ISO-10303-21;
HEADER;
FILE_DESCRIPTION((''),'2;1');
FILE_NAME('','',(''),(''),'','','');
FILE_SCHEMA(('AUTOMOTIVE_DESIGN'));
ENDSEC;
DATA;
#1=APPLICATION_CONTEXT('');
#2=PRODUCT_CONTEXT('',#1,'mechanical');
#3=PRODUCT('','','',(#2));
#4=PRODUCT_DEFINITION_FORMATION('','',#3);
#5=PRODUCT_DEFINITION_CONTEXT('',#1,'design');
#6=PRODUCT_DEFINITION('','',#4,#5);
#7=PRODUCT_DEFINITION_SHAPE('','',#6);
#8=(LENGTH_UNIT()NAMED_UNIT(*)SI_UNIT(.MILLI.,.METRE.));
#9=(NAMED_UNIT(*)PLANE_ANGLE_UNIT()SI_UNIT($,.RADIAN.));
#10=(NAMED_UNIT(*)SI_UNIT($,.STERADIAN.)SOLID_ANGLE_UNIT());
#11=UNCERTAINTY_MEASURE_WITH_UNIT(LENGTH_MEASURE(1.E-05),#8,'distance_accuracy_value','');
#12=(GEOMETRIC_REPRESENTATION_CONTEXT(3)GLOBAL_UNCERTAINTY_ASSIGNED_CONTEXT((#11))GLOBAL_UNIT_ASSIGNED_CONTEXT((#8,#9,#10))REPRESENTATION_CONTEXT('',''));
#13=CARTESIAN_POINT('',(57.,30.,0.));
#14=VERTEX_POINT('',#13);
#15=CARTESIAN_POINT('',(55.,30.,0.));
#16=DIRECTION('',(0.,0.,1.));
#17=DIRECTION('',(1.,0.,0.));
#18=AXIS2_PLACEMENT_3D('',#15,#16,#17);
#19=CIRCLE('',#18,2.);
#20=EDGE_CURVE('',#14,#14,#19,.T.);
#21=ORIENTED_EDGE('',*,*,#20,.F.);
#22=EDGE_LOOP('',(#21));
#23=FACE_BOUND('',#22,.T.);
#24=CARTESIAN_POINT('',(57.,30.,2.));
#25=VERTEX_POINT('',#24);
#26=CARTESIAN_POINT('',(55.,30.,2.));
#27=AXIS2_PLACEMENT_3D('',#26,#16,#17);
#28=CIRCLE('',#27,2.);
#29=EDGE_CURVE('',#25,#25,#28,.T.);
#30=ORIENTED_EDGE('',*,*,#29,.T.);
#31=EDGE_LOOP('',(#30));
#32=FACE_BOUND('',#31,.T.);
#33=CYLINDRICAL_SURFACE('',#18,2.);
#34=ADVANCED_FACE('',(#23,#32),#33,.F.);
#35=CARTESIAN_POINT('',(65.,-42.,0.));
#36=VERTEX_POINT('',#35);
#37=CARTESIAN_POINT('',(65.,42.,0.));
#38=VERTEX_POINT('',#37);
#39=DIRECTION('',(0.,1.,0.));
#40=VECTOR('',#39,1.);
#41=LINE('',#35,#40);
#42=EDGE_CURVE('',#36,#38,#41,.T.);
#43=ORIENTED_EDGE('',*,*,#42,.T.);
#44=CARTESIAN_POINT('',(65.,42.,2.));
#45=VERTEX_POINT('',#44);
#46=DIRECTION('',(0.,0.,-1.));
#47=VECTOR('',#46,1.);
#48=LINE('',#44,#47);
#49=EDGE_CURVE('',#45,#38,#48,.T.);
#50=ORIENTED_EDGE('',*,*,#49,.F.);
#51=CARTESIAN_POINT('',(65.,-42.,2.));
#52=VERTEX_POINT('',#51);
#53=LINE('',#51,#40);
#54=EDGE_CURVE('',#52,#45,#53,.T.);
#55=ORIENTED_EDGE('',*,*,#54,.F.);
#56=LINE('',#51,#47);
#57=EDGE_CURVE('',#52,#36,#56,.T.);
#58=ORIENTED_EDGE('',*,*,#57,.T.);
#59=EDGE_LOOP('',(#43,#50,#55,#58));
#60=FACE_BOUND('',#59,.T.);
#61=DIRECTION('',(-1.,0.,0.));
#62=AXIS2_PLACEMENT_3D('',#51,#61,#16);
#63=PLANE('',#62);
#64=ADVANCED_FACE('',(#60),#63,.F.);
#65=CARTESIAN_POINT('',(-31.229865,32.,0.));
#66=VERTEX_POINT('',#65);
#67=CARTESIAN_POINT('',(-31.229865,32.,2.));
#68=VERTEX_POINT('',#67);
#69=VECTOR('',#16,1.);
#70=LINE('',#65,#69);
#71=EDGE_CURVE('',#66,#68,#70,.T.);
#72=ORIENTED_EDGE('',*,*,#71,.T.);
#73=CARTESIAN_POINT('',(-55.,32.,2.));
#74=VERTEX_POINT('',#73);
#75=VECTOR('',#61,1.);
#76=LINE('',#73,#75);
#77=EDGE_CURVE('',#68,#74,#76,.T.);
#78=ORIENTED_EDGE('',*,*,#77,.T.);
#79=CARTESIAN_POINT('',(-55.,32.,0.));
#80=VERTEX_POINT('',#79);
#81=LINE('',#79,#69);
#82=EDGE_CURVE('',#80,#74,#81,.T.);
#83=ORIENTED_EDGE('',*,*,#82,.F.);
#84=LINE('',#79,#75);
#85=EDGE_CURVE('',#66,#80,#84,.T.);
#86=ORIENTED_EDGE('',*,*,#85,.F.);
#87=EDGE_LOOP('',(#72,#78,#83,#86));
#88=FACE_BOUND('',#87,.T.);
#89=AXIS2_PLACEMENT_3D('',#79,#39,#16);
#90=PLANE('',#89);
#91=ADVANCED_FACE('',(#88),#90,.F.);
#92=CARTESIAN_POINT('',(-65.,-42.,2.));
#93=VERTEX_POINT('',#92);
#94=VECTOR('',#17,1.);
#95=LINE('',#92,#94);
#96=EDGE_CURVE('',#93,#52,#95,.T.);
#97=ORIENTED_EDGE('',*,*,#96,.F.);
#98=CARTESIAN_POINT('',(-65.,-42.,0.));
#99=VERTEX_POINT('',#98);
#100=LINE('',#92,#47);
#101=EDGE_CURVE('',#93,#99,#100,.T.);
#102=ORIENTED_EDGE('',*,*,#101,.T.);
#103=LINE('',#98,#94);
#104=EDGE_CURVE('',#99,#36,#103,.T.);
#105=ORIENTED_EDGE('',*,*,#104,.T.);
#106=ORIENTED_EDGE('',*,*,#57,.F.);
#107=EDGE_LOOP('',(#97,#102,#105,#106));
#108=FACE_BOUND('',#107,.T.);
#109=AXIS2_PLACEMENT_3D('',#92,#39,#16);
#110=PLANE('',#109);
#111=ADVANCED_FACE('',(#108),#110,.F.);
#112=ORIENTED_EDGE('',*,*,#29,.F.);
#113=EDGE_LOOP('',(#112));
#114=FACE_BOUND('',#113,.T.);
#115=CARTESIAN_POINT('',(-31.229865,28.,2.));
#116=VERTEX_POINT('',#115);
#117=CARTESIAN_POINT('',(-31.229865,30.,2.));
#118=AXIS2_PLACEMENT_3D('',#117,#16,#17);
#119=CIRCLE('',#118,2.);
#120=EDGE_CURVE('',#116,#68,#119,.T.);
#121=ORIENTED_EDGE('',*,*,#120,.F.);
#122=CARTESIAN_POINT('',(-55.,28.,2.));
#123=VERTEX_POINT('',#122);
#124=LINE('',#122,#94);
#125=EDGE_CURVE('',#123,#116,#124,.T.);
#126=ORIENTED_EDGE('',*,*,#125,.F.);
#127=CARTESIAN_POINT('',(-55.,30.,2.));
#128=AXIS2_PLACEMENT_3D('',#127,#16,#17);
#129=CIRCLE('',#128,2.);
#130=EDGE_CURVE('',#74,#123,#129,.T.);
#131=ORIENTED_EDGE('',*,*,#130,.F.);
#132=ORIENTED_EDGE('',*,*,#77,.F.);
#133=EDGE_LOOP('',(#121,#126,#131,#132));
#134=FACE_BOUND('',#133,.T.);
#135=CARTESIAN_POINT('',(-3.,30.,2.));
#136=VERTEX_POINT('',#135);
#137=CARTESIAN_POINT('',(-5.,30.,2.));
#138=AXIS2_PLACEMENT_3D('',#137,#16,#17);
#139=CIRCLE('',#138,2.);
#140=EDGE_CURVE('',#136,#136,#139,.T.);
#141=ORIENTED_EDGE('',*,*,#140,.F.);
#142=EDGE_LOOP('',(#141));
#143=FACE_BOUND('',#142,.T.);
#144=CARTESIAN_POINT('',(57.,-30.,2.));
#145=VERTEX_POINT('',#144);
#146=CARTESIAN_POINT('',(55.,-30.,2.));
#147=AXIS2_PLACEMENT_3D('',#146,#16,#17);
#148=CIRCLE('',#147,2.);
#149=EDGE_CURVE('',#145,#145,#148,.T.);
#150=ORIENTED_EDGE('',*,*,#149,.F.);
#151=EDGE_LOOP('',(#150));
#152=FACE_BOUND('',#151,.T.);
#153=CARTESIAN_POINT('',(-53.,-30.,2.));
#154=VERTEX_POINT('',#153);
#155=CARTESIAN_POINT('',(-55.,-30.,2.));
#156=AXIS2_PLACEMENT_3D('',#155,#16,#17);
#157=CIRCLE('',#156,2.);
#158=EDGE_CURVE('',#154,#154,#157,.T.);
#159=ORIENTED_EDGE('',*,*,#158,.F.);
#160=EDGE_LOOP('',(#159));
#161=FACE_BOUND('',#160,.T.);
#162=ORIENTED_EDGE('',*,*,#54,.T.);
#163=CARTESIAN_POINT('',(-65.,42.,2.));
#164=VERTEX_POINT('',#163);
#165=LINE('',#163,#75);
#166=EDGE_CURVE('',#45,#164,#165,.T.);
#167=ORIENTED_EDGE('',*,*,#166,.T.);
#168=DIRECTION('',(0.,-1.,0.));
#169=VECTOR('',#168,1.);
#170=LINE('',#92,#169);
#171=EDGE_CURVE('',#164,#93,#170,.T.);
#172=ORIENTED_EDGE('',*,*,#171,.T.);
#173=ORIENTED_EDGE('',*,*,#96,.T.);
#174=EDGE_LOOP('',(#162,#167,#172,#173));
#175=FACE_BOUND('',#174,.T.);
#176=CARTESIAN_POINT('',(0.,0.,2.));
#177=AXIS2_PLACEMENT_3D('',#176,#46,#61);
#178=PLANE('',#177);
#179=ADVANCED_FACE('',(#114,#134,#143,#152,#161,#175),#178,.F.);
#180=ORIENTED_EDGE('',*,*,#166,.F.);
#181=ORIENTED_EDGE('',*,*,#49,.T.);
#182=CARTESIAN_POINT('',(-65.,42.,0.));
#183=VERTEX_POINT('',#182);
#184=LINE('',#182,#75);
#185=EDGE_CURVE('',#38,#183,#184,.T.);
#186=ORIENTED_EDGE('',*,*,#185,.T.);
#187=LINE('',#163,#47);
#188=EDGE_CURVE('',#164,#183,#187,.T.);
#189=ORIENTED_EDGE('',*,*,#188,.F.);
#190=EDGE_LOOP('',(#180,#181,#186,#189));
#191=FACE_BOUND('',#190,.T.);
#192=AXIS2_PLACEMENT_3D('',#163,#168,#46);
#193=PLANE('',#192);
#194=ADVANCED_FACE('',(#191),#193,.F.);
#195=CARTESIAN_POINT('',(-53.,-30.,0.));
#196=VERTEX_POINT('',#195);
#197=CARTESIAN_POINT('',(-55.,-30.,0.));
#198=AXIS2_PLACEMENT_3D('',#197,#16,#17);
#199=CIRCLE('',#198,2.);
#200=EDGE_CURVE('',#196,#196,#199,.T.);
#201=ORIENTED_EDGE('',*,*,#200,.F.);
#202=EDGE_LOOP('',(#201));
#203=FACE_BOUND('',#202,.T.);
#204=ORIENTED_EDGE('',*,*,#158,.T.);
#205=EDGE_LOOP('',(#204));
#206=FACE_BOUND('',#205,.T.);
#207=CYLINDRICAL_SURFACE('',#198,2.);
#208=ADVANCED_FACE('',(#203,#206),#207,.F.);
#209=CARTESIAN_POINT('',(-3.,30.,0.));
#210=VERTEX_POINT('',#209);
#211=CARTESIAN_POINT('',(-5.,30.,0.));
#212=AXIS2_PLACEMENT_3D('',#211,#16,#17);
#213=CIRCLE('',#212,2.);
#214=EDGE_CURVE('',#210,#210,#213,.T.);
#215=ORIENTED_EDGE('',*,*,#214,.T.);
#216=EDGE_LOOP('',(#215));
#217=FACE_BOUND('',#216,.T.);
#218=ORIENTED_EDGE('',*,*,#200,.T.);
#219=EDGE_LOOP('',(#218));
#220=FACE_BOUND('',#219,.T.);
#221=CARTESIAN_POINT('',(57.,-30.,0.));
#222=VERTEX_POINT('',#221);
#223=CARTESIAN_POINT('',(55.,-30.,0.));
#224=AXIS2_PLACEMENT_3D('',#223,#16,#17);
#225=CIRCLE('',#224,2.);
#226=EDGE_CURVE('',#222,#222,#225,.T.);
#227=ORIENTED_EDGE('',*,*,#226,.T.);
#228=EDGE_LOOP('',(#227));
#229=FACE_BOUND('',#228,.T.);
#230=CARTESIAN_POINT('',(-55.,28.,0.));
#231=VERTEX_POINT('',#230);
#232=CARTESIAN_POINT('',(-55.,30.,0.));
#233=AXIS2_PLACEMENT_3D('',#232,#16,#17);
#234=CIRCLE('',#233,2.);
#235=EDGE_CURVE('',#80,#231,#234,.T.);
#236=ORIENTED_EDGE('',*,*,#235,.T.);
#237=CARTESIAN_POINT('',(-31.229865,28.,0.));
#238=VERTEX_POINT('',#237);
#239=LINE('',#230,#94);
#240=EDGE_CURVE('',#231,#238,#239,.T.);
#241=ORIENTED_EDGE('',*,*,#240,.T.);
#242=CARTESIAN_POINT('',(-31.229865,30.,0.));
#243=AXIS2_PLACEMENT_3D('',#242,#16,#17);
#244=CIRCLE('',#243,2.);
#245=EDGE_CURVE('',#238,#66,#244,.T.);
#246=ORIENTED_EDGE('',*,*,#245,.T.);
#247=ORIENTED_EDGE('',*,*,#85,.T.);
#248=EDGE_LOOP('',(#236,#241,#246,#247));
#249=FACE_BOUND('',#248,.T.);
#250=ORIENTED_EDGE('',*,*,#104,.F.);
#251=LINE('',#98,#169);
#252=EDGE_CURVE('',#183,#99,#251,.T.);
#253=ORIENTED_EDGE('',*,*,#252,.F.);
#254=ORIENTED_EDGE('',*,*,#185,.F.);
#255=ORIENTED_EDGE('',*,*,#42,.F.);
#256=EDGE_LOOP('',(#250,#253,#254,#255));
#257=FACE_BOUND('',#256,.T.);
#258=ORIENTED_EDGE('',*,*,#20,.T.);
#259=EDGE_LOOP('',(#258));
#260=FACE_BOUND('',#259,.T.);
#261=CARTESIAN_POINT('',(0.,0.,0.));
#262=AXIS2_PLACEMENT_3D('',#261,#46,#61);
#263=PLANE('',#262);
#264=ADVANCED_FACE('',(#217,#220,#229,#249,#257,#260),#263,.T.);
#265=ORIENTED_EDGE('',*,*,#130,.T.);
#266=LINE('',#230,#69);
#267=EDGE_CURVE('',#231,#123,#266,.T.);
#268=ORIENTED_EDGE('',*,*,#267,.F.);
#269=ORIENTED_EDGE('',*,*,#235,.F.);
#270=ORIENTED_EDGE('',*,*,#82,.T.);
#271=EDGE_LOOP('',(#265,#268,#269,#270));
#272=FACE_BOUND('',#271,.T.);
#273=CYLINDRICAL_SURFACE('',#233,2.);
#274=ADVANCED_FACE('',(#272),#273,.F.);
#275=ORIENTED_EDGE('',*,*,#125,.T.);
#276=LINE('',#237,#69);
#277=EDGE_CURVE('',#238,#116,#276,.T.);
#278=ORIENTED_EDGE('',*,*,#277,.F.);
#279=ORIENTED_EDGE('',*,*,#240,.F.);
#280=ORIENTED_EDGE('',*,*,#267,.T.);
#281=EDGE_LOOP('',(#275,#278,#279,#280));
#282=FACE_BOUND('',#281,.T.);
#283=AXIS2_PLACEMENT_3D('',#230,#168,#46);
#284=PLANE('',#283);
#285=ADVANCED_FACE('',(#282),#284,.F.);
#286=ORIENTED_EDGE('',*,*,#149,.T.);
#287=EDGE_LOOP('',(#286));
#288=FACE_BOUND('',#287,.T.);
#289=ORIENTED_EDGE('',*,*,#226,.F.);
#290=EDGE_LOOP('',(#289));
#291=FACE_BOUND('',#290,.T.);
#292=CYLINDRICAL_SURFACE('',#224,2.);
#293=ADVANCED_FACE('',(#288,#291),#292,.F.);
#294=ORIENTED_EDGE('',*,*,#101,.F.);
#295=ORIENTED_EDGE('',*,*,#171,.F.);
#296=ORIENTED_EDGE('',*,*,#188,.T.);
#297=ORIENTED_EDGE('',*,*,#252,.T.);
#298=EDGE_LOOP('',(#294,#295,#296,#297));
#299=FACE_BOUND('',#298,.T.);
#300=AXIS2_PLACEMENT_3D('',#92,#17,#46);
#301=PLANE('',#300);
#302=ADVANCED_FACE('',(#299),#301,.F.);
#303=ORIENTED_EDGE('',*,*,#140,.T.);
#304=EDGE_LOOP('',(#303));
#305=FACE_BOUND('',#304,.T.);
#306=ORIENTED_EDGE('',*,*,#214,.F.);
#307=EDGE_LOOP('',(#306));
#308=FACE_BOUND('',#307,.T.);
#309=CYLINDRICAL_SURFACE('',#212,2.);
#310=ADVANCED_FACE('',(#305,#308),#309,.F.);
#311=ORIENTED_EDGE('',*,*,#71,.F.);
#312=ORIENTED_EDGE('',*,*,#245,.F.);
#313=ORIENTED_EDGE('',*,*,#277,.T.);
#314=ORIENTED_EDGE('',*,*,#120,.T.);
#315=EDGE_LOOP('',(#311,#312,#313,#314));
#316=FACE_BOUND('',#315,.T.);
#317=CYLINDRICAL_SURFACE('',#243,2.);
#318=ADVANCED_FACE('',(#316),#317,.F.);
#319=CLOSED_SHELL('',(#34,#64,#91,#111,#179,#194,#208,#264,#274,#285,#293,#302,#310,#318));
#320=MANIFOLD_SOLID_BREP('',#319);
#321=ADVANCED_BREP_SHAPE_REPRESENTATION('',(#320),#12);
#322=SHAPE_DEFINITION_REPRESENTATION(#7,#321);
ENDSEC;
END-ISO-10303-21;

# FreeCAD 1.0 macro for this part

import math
import FreeCAD as App
import Part
import Sketcher
from FreeCAD import Vector

doc = App.newDocument("Part")
params = doc.addObject("Spreadsheet::Sheet", "Params")
for row, (alias, value) in enumerate([
    ("sketch1_width", "130 mm"),
    ("sketch1_height", "84 mm"),
    ("pad1_length", "2 mm"),
    ("sketch2_diameter", "4 mm"),
    ("pocket1_length", "2 mm"),
    ("sketch3_radius", "2 mm"),
    ("pocket2_length", "2 mm"),
], start=1):
    params.set(f"A{row}", alias)
    params.set(f"B{row}", "=" + value)
    params.setAlias(f"B{row}", alias)

body = doc.addObject("PartDesign::Body", "Body")

sketch1 = body.newObject("Sketcher::SketchObject", "Sketch")
sketch1.AttachmentSupport = (doc.getObject("XY_Plane"), [""])
sketch1.MapMode = "FlatFace"
sketch1.addGeometry(Part.LineSegment(Vector(-65, 42, 0), Vector(-65, -42, 0)), False)
sketch1.addGeometry(Part.LineSegment(Vector(-65, -42, 0), Vector(65, -42, 0)), False)
sketch1.addGeometry(Part.LineSegment(Vector(65, -42, 0), Vector(65, 42, 0)), False)
sketch1.addGeometry(Part.LineSegment(Vector(65, 42, 0), Vector(-65, 42, 0)), False)
sketch1.addConstraint(Sketcher.Constraint("Coincident", 0, 2, 1, 1))
sketch1.addConstraint(Sketcher.Constraint("Coincident", 1, 2, 2, 1))
sketch1.addConstraint(Sketcher.Constraint("Coincident", 2, 2, 3, 1))
sketch1.addConstraint(Sketcher.Constraint("Coincident", 3, 2, 0, 1))
sketch1.addConstraint(Sketcher.Constraint("Vertical", 0))
sketch1.addConstraint(Sketcher.Constraint("Horizontal", 1))
sketch1.addConstraint(Sketcher.Constraint("Vertical", 2))
sketch1.addConstraint(Sketcher.Constraint("Horizontal", 3))
sketch1.addConstraint(Sketcher.Constraint("Symmetric", 0, 2, 2, 2, -1, 1))
sketch1.addConstraint(Sketcher.Constraint("DistanceX", 1, 1, 1, 2, 130.0))
sketch1.addConstraint(Sketcher.Constraint("DistanceY", 0, 2, 0, 1, 84.0))
sketch1.setExpression("Constraints[9]", "Params.sketch1_width")
sketch1.setExpression("Constraints[10]", "Params.sketch1_height")
pad1 = body.newObject("PartDesign::Pad", "Pad")
pad1.Profile = sketch1
pad1.setExpression("Length", "Params.pad1_length")

sketch2 = body.newObject("Sketcher::SketchObject", "Sketch001")
sketch2.AttachmentSupport = (doc.getObject("XY_Plane"), [""])
sketch2.MapMode = "FlatFace"
sketch2.AttachmentOffset = App.Placement(Vector(0, 0, 2), App.Rotation())
sketch2.addGeometry(Part.Circle(Vector(55, -30, 0), Vector(0, 0, 1), 2), False)
sketch2.addGeometry(Part.Circle(Vector(-55, -30, 0), Vector(0, 0, 1), 2), False)
sketch2.addGeometry(Part.Circle(Vector(55, 30, 0), Vector(0, 0, 1), 2), False)
sketch2.addGeometry(Part.Circle(Vector(-5, 30, 0), Vector(0, 0, 1), 2), False)
sketch2.addConstraint(Sketcher.Constraint("Equal", 0, 1))
sketch2.addConstraint(Sketcher.Constraint("Equal", 1, 2))
sketch2.addConstraint(Sketcher.Constraint("Equal", 2, 3))
sketch2.addConstraint(Sketcher.Constraint("Symmetric", 1, 3, 2, 3, -1, 1))
sketch2.addConstraint(Sketcher.Constraint("Symmetric", 0, 3, 1, 3, -2))
sketch2.addConstraint(Sketcher.Constraint("Horizontal", 2, 3, 3, 3))
sketch2.addConstraint(Sketcher.Constraint("Diameter", 0, 4.0))
sketch2.addConstraint(Sketcher.Constraint("DistanceX", -1, 1, 0, 3, 55.0))
sketch2.addConstraint(Sketcher.Constraint("DistanceY", 0, 3, -1, 1, 30.0))
sketch2.addConstraint(Sketcher.Constraint("DistanceX", 3, 3, -1, 1, 5.0))
sketch2.setExpression("Constraints[6]", "Params.sketch2_diameter")
pocket1 = body.newObject("PartDesign::Pocket", "Pocket")
pocket1.Profile = sketch2
pocket1.setExpression("Length", "Params.pocket1_length")

sketch3 = body.newObject("Sketcher::SketchObject", "Sketch002")
sketch3.AttachmentSupport = (doc.getObject("XY_Plane"), [""])
sketch3.MapMode = "FlatFace"
sketch3.AttachmentOffset = App.Placement(Vector(0, 0, 2), App.Rotation())
sketch3.addGeometry(Part.LineSegment(Vector(-31.229865, 32, 0), Vector(-55, 32, 0)), False)
sketch3.addGeometry(Part.ArcOfCircle(Part.Circle(Vector(-55, 30, 0), Vector(0, 0, 1), 2), math.radians(90), math.radians(270)), False)
sketch3.addGeometry(Part.LineSegment(Vector(-55, 28, 0), Vector(-31.229865, 28, 0)), False)
sketch3.addGeometry(Part.ArcOfCircle(Part.Circle(Vector(-31.229865, 30, 0), Vector(0, 0, 1), 2), math.radians(-90), math.radians(90)), False)
sketch3.addConstraint(Sketcher.Constraint("Tangent", 0, 2, 1, 1))
sketch3.addConstraint(Sketcher.Constraint("Tangent", 1, 2, 2, 1))
sketch3.addConstraint(Sketcher.Constraint("Tangent", 2, 2, 3, 1))
sketch3.addConstraint(Sketcher.Constraint("Tangent", 3, 2, 0, 1))
sketch3.addConstraint(Sketcher.Constraint("Horizontal", 0))
sketch3.addConstraint(Sketcher.Constraint("Horizontal", 2))
sketch3.addConstraint(Sketcher.Constraint("Radius", 1, 2.0))
sketch3.addConstraint(Sketcher.Constraint("DistanceX", 1, 3, -1, 1, 55.0))
sketch3.addConstraint(Sketcher.Constraint("DistanceY", -1, 1, 1, 3, 30.0))
sketch3.addConstraint(Sketcher.Constraint("DistanceX", 0, 2, 0, 1, 23.770135))
sketch3.setExpression("Constraints[6]", "Params.sketch3_radius")
pocket2 = body.newObject("PartDesign::Pocket", "Pocket001")
pocket2.Profile = sketch3
pocket2.setExpression("Length", "Params.pocket2_length")

doc.recompute()
